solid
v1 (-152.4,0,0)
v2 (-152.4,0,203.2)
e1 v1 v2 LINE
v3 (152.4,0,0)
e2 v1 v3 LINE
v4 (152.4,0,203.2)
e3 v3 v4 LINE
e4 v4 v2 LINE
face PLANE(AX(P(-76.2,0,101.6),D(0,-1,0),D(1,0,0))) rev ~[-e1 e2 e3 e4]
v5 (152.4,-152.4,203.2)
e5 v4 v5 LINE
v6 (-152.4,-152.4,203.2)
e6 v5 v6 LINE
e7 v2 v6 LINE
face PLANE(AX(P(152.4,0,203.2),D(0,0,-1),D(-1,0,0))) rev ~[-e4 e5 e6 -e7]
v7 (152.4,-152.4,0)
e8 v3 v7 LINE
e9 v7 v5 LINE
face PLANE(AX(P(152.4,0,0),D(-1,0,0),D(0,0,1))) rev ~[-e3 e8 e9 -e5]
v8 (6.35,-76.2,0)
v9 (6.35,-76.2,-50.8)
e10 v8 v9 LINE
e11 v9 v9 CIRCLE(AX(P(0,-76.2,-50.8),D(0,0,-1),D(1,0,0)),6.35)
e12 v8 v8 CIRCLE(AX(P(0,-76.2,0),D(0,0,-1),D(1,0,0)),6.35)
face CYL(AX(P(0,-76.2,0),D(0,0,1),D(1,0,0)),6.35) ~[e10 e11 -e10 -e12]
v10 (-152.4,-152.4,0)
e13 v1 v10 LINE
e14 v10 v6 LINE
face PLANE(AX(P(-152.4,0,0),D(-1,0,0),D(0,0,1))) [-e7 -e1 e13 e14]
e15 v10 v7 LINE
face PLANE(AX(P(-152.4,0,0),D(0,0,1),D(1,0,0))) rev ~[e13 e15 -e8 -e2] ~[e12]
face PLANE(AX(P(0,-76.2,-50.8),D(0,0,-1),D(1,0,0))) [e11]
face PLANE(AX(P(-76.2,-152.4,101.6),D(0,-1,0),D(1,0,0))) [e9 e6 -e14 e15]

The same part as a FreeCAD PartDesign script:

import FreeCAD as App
import Part
import Sketcher
from FreeCAD import Vector
Q = App.Units.Quantity

doc = App.newDocument("Part")
body = doc.addObject("PartDesign::Body", "Body")

sketch1 = doc.addObject("Sketcher::SketchObject", "Sketch")
body.addObject(sketch1)
sketch1.AttachmentSupport = (doc.XZ_Plane, [""])
sketch1.MapMode = "FlatFace"
sketch1.addGeometry([
    Part.LineSegment(Vector(-152.4, 203.2, 0), Vector(-152.4, 0, 0)),
    Part.LineSegment(Vector(-152.4, 0, 0), Vector(152.4, 0, 0)),
    Part.LineSegment(Vector(152.4, 0, 0), Vector(152.4, 203.2, 0)),
    Part.LineSegment(Vector(152.4, 203.2, 0), Vector(-152.4, 203.2, 0)),
], False)
sketch1.addConstraint([
    Sketcher.Constraint("Coincident", 0, 2, 1, 1),
    Sketcher.Constraint("Coincident", 1, 2, 2, 1),
    Sketcher.Constraint("Coincident", 2, 2, 3, 1),
    Sketcher.Constraint("Coincident", 3, 2, 0, 1),
    Sketcher.Constraint("Vertical", 0),
    Sketcher.Constraint("Horizontal", 1),
    Sketcher.Constraint("Vertical", 2),
    Sketcher.Constraint("Horizontal", 3),
    Sketcher.Constraint("Symmetric", 0, 2, 1, 2, -1, 1),
    Sketcher.Constraint("DistanceX", 1, 1, 1, 2, Q("12 in")),
    Sketcher.Constraint("DistanceY", 0, 2, 0, 1, Q("8 in")),
])
pad1 = doc.addObject("PartDesign::Pad", "Pad")
body.addObject(pad1)
pad1.Profile = sketch1
pad1.Length = Q("6 in")

sketch2 = doc.addObject("Sketcher::SketchObject", "Sketch001")
body.addObject(sketch2)
sketch2.AttachmentSupport = (doc.XY_Plane, [""])
sketch2.MapMode = "FlatFace"
sketch2.addGeometry(Part.Circle(Vector(0, -76.2, 0), Vector(0, 0, 1), 6.35), False)
sketch2.addConstraint([
    Sketcher.Constraint("PointOnObject", 0, 3, -2),
    Sketcher.Constraint("Diameter", 0, Q("0.5 in")),
    Sketcher.Constraint("DistanceY", 0, 3, -1, 1, Q("3 in")),
])
pad2 = doc.addObject("PartDesign::Pad", "Pad001")
body.addObject(pad2)
pad2.Profile = sketch2
pad2.Length = Q("2 in")
pad2.Reversed = True

doc.recompute()
